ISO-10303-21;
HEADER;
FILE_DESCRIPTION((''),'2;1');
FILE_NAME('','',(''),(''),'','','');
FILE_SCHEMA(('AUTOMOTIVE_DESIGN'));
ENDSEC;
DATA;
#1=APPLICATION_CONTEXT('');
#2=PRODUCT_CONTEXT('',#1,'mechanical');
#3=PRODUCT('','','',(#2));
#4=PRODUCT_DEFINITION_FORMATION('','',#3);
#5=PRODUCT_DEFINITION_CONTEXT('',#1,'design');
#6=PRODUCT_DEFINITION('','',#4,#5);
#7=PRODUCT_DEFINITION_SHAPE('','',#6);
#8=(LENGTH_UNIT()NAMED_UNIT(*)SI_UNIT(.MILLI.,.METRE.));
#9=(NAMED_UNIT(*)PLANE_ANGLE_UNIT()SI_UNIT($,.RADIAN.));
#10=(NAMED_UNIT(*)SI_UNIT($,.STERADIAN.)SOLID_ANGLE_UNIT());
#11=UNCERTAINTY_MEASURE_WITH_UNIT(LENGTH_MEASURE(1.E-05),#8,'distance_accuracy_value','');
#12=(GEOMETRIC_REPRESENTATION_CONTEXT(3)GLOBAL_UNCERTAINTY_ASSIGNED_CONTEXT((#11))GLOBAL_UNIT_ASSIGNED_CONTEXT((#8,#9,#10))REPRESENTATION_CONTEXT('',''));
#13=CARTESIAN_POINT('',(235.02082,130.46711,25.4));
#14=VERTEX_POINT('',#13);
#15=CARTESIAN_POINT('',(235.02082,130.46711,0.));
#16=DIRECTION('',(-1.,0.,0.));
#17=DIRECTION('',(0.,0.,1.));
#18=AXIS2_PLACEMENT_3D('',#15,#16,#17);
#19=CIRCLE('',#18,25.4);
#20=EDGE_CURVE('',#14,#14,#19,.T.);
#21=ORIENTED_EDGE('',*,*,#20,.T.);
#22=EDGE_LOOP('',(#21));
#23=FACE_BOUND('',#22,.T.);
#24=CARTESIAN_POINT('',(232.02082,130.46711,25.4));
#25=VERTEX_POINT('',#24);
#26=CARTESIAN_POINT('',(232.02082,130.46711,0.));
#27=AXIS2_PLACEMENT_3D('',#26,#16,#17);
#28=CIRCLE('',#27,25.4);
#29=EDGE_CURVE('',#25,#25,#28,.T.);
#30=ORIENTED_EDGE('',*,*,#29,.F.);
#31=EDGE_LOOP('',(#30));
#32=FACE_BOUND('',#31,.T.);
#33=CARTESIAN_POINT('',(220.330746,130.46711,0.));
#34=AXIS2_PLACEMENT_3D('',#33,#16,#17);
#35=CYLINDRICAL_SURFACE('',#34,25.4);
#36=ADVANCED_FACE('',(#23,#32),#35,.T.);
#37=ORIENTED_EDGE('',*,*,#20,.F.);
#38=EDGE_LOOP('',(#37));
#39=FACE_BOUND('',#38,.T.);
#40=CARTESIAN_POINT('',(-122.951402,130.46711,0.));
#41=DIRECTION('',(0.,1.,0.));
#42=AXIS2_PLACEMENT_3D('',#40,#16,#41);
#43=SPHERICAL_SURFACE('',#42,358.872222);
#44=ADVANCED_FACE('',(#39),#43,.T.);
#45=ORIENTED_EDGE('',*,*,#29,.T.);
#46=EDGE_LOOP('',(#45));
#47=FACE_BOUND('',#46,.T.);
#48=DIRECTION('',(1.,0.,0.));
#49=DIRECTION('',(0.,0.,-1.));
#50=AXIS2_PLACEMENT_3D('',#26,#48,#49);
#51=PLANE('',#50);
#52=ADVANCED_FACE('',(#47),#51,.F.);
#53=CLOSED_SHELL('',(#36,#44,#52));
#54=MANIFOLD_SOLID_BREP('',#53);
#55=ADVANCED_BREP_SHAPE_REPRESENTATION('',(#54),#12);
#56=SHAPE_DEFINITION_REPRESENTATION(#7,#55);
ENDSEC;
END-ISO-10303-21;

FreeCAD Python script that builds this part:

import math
import FreeCAD as App
import Part
import Sketcher

doc = App.newDocument("Part")
body = doc.addObject("PartDesign::Body", "Body")

# Sketch on XY plane
sketch1 = body.newObject("Sketcher::SketchObject", "Sketch")
sketch1.AttachmentSupport = (doc.getObject("XY_Plane"), [""])
sketch1.MapMode = "FlatFace"
sketch1.addGeometry(Part.LineSegment(App.Vector(232, 155.9, 0), App.Vector(232, 130.5, 0)), False)
sketch1.addGeometry(Part.LineSegment(App.Vector(232, 130.5, 0), App.Vector(235.9, 130.5, 0)), False)
sketch1.addGeometry(Part.ArcOfCircle(Part.Circle(App.Vector(-123, 130.5, 0), App.Vector(0, 0, 1), 358.9), math.radians(0), math.radians(4.06)), False)
sketch1.addGeometry(Part.LineSegment(App.Vector(235, 155.9, 0), App.Vector(232, 155.9, 0)), False)
sketch1.addGeometry(Part.LineSegment(App.Vector(-123, 130.5, 0), App.Vector(235.9, 130.5, 0)), True)  # axis
sketch1.addConstraint(Sketcher.Constraint("Coincident", 0, 2, 1, 1))
sketch1.addConstraint(Sketcher.Constraint("Coincident", 1, 2, 2, 1))
sketch1.addConstraint(Sketcher.Constraint("Coincident", 2, 2, 3, 1))
sketch1.addConstraint(Sketcher.Constraint("Coincident", 3, 2, 0, 1))
sketch1.addConstraint(Sketcher.Constraint("Vertical", 0))
sketch1.addConstraint(Sketcher.Constraint("Horizontal", 1))
sketch1.addConstraint(Sketcher.Constraint("Horizontal", 3))
sketch1.addConstraint(Sketcher.Constraint("Horizontal", 4))
sketch1.addConstraint(Sketcher.Constraint("Coincident", 4, 1, 2, 3))
sketch1.addConstraint(Sketcher.Constraint("Coincident", 4, 2, 1, 2))
sketch1.addConstraint(Sketcher.Constraint("DistanceX", 3, 2, 3, 1, 3.0))
sketch1.addConstraint(Sketcher.Constraint("DistanceX", 1, 1, 1, 2, 3.9))
sketch1.addConstraint(Sketcher.Constraint("DistanceY", 0, 2, 0, 1, 25.4))
sketch1.addConstraint(Sketcher.Constraint("DistanceX", 2, 3, -1, 1, 122.951401))
sketch1.addConstraint(Sketcher.Constraint("DistanceY", -1, 1, 2, 3, 130.46711))
revolution = body.newObject("PartDesign::Revolution", "Revolution")
revolution.Profile = sketch1
revolution.ReferenceAxis = (sketch1, ["Axis0"])
revolution.Angle = 360

doc.recompute()
